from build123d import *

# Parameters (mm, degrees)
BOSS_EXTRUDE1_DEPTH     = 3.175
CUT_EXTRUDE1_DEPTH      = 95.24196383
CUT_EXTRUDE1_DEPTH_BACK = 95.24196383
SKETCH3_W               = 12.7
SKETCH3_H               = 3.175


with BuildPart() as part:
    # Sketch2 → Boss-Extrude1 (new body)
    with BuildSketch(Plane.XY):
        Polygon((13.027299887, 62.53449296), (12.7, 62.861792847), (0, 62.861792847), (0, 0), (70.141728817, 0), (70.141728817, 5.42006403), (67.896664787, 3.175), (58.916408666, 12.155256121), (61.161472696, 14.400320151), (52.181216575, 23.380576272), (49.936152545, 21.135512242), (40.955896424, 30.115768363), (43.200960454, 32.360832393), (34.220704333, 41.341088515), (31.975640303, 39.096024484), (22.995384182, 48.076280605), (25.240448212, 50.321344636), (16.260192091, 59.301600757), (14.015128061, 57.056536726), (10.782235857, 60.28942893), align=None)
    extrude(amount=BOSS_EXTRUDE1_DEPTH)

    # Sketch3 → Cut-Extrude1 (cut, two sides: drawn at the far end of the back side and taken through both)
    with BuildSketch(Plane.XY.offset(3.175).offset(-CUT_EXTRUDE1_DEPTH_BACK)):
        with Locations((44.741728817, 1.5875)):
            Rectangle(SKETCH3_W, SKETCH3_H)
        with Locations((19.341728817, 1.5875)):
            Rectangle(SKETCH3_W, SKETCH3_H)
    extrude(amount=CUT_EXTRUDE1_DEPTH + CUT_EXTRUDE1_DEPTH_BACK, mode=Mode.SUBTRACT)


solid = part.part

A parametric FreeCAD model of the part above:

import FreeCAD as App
import Part
import Sketcher

V = App.Vector
Q = App.Units.Quantity


def add_polygon(sketch, points):
    """Adds a closed chain of lines whose ends are joined by coincident constraints."""
    first, n = sketch.GeometryCount, len(points)
    for a, b in zip(points, points[1:] + points[:1]):
        sketch.addGeometry(Part.LineSegment(App.Vector(*a, 0), App.Vector(*b, 0)), False)
    for i in range(n):
        sketch.addConstraint(Sketcher.Constraint("Coincident", first + i, 2, first + (i + 1) % n, 1))

doc = App.newDocument("Part")
params = doc.addObject("Spreadsheet::Sheet", "Params")
for row, (alias, value) in enumerate([
    ("sketch1_width", "0.5 in"),
    ("sketch1_length", "0.5 in"),
    ("sketch1_length2", "0.18 in"),
    ("sketch1_length3", "0.125 in"),
    ("pad1_length", "0.125 in"),
    ("sketch2_width", "0.5 in"),
    ("sketch2_height", "0.125 in"),
], start=1):
    params.set(f"A{row}", alias)
    params.set(f"B{row}", "=" + value)
    params.setAlias(f"B{row}", alias)

body = doc.addObject("PartDesign::Body", "Body")

# Sketch on XY plane
sketch1 = body.newObject("Sketcher::SketchObject", "Sketch")
sketch1.AttachmentSupport = (doc.getObject("XY_Plane"), [""])
sketch1.MapMode = "FlatFace"
add_polygon(sketch1, [(13.03, 62.53), (12.7, 62.86), (0, 62.86), (0, 0), (70.14, 0), (70.14, 5.42), (67.9, 3.17), (58.92, 12.16), (61.16, 14.4), (52.18, 23.38), (49.94, 21.14), (40.96, 30.12), (43.2, 32.36), (34.22, 41.34), (31.98, 39.1), (23, 48.08), (25.24, 50.32), (16.26, 59.3), (14.02, 57.06), (10.78, 60.29)])  # lines 0-19
sketch1.addConstraint([
    Sketcher.Constraint("Horizontal", 1),
    Sketcher.Constraint("Vertical", 2),
    Sketcher.Constraint("Horizontal", 3),
    Sketcher.Constraint("Vertical", 4),
    Sketcher.Constraint("Coincident", 2, 2, -1, 1),
    Sketcher.Constraint("Perpendicular", 0, 5),
    Sketcher.Constraint("Perpendicular", 5, 6),
    Sketcher.Constraint("Perpendicular", 6, 7),
    Sketcher.Constraint("Perpendicular", 7, 8),
    Sketcher.Constraint("Perpendicular", 8, 9),
    Sketcher.Constraint("Perpendicular", 9, 10),
    Sketcher.Constraint("Perpendicular", 10, 11),
    Sketcher.Constraint("Perpendicular", 11, 12),
    Sketcher.Constraint("Perpendicular", 12, 13),
    Sketcher.Constraint("Perpendicular", 13, 14),
    Sketcher.Constraint("Perpendicular", 14, 15),
    Sketcher.Constraint("Perpendicular", 15, 16),
    Sketcher.Constraint("Perpendicular", 16, 17),
    Sketcher.Constraint("Perpendicular", 17, 18),
    Sketcher.Constraint("Perpendicular", 18, 19),
    Sketcher.Constraint("Equal", 5, 7),
    Sketcher.Constraint("Equal", 6, 8),
    Sketcher.Constraint("Equal", 7, 9),
    Sketcher.Constraint("Equal", 8, 10),
    Sketcher.Constraint("Equal", 9, 11),
    Sketcher.Constraint("Equal", 10, 12),
    Sketcher.Constraint("Equal", 11, 13),
    Sketcher.Constraint("Equal", 12, 14),
    Sketcher.Constraint("Equal", 13, 15),
    Sketcher.Constraint("Equal", 14, 16),
    Sketcher.Constraint("Equal", 15, 17),
    Sketcher.Constraint("Equal", 17, 19),
    Sketcher.Constraint("DistanceX", 1, 2, 1, 1, Q("0.5 in")),
    Sketcher.Constraint("Angle", 5, Q("-135 deg")),
    Sketcher.Constraint("Distance", 6, Q("0.5 in")),
    Sketcher.Constraint("Distance", 18, Q("0.18 in")),
    Sketcher.Constraint("Distance", 5, Q("0.125 in")),
    Sketcher.Constraint("DistanceY", -1, 1, 5, 2, Q("0.125 in")),
    Sketcher.Constraint("DistanceX", 3, 1, 3, 2, Q("70.141729 mm")),
])
sketch1.setExpression("Constraints[52]", "Params.sketch1_width")
sketch1.setExpression("Constraints[54]", "Params.sketch1_length")
sketch1.setExpression("Constraints[55]", "Params.sketch1_length2")
sketch1.setExpression("Constraints[56]", "Params.sketch1_length3")
pad1 = body.newObject("PartDesign::Pad", "Pad")
pad1.Profile = sketch1
pad1.setExpression("Length", "Params.pad1_length")

# Sketch on XY plane
sketch2 = body.newObject("Sketcher::SketchObject", "Sketch001")
sketch2.AttachmentSupport = (doc.getObject("XY_Plane"), [""])
sketch2.MapMode = "FlatFace"
sketch2.AttachmentOffset = App.Placement(V(0, 0, 0.125 * 25.4), App.Rotation())
add_polygon(sketch2, [(38.4, 3.2), (38.4, 0), (51.1, 0), (51.1, 3.2)])  # lines 0-3
add_polygon(sketch2, [(13, 3.2), (13, 0), (25.7, 0), (25.7, 3.2)])  # lines 4-7
sketch2.addConstraint([
    Sketcher.Constraint("Vertical", 0),
    Sketcher.Constraint("Horizontal", 1),
    Sketcher.Constraint("Vertical", 2),
    Sketcher.Constraint("Horizontal", 3),
    Sketcher.Constraint("Vertical", 4),
    Sketcher.Constraint("Horizontal", 5),
    Sketcher.Constraint("Vertical", 6),
    Sketcher.Constraint("Horizontal", 7),
    Sketcher.Constraint("PointOnObject", 0, 2, -1),
    Sketcher.Constraint("PointOnObject", 4, 2, -1),
    Sketcher.Constraint("Horizontal", 3, 2, 6, 2),
    Sketcher.Constraint("Equal", 3, 5),
    Sketcher.Constraint("DistanceX", 1, 1, 1, 2, Q("0.5 in")),
    Sketcher.Constraint("DistanceX", 4, 2, 0, 2, Q("1 in")),
    Sketcher.Constraint("DistanceY", 0, 2, 0, 1, Q("0.125 in")),
    Sketcher.Constraint("DistanceX", -1, 1, 0, 2, Q("38.391729 mm")),
])
sketch2.setExpression("Constraints[20]", "Params.sketch2_width")
sketch2.setExpression("Constraints[22]", "Params.sketch2_height")
pocket1 = body.newObject("PartDesign::Pocket", "Pocket")
pocket1.Profile = sketch2
pocket1.Type = "ThroughAll"
pocket1.Midplane = True

doc.recompute()
